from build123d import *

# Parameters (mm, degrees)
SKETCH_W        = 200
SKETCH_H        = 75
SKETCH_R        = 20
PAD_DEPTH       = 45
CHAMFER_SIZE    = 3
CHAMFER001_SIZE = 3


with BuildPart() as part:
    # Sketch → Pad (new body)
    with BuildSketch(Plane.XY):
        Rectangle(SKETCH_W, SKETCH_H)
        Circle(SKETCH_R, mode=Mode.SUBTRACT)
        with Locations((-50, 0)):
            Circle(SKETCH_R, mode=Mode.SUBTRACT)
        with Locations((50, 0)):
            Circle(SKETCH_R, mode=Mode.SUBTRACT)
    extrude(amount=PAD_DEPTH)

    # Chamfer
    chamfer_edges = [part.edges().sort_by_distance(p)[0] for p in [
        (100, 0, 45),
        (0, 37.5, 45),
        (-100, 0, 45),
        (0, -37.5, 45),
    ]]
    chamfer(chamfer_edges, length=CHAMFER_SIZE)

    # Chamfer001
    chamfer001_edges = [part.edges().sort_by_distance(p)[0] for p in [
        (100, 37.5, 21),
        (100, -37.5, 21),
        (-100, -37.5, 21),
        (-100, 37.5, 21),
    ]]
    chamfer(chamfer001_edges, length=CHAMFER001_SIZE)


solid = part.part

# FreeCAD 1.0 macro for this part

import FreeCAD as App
import Part
import Sketcher
Q = App.Units.Quantity


def edges_at(feature, points):
    """Names of the edges that pass closest to the given points."""
    edges = feature.Shape.Edges
    near = lambda p: min(range(len(edges)), key=lambda i: edges[i].distToShape(Part.Vertex(*p))[0])
    return sorted({f"Edge{near(p) + 1}" for p in points})

doc = App.newDocument("Part")
params = doc.addObject("Spreadsheet::Sheet", "Params")
for row, (alias, value) in enumerate([
    ("sketch1_diameter", "40 mm"),
    ("sketch1_width", "200 mm"),
    ("sketch1_height", "75 mm"),
    ("pad1_length", "45 mm"),
    ("chamfer_size", "3 mm"),
    ("chamfer2_size", "3 mm"),
], start=1):
    params.set(f"A{row}", alias)
    params.set(f"B{row}", "=" + value)
    params.setAlias(f"B{row}", alias)

body = doc.addObject("PartDesign::Body", "Body")

# Sketch on XY plane
sketch1 = body.newObject("Sketcher::SketchObject", "Sketch")
sketch1.AttachmentSupport = (doc.getObject("XY_Plane"), [""])
sketch1.MapMode = "FlatFace"
sketch1.addGeometry(Part.LineSegment(App.Vector(-100, 38, 0), App.Vector(-100, -38, 0)), False)
sketch1.addGeometry(Part.LineSegment(App.Vector(-100, -38, 0), App.Vector(100, -38, 0)), False)
sketch1.addGeometry(Part.LineSegment(App.Vector(100, -38, 0), App.Vector(100, 38, 0)), False)
sketch1.addGeometry(Part.LineSegment(App.Vector(100, 38, 0), App.Vector(-100, 38, 0)), False)
sketch1.addGeometry(Part.Circle(App.Vector(-50, 0, 0), App.Vector(0, 0, 1), 20), False)
sketch1.addGeometry(Part.Circle(App.Vector(0, 0, 0), App.Vector(0, 0, 1), 20), False)
sketch1.addGeometry(Part.Circle(App.Vector(50, 0, 0), App.Vector(0, 0, 1), 20), False)
sketch1.addConstraint(Sketcher.Constraint("Coincident", 0, 2, 1, 1))
sketch1.addConstraint(Sketcher.Constraint("Coincident", 1, 2, 2, 1))
sketch1.addConstraint(Sketcher.Constraint("Coincident", 2, 2, 3, 1))
sketch1.addConstraint(Sketcher.Constraint("Coincident", 3, 2, 0, 1))
sketch1.addConstraint(Sketcher.Constraint("Vertical", 0))
sketch1.addConstraint(Sketcher.Constraint("Horizontal", 1))
sketch1.addConstraint(Sketcher.Constraint("Vertical", 2))
sketch1.addConstraint(Sketcher.Constraint("Horizontal", 3))
sketch1.addConstraint(Sketcher.Constraint("Coincident", 5, 3, -1, 1))
sketch1.addConstraint(Sketcher.Constraint("Equal", 4, 5))
sketch1.addConstraint(Sketcher.Constraint("Equal", 5, 6))
sketch1.addConstraint(Sketcher.Constraint("Symmetric", 4, 3, 6, 3, -1, 1))
sketch1.addConstraint(Sketcher.Constraint("Symmetric", 0, 2, 2, 2, -1, 1))
sketch1.addConstraint(Sketcher.Constraint("PointOnObject", 4, 3, -1))
sketch1.addConstraint(Sketcher.Constraint("Diameter", 4, Q("40 mm")))
sketch1.addConstraint(Sketcher.Constraint("DistanceX", 1, 1, 1, 2, Q("200 mm")))
sketch1.addConstraint(Sketcher.Constraint("DistanceY", 0, 2, 0, 1, Q("75 mm")))
sketch1.addConstraint(Sketcher.Constraint("DistanceX", 4, 3, -1, 1, Q("50 mm")))
sketch1.setExpression("Constraints[14]", "Params.sketch1_diameter")
sketch1.setExpression("Constraints[15]", "Params.sketch1_width")
sketch1.setExpression("Constraints[16]", "Params.sketch1_height")
pad1 = body.newObject("PartDesign::Pad", "Pad")
pad1.Profile = sketch1
pad1.setExpression("Length", "Params.pad1_length")
doc.recompute()

chamfer = body.newObject("PartDesign::Chamfer", "Chamfer")
chamfer.Base = (pad1, edges_at(pad1, [
    (100, 0, 45),
    (0, 37.5, 45),
    (-100, 0, 45),
    (0, -37.5, 45),
]))
chamfer.setExpression("Size", "Params.chamfer_size")
doc.recompute()

chamfer2 = body.newObject("PartDesign::Chamfer", "Chamfer001")
chamfer2.Base = (chamfer, edges_at(chamfer, [
    (100, 37.5, 21),
    (100, -37.5, 21),
    (-100, -37.5, 21),
    (-100, 37.5, 21),
]))
chamfer2.setExpression("Size", "Params.chamfer2_size")

doc.recompute()
